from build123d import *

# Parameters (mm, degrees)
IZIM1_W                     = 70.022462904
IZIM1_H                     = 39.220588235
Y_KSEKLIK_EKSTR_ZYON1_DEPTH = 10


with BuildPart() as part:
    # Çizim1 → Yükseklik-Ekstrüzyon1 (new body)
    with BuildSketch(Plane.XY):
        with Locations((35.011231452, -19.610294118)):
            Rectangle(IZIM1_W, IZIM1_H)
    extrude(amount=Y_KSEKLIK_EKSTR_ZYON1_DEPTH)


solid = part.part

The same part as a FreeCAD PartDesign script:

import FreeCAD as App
import Part
import Sketcher
Q = App.Units.Quantity

doc = App.newDocument("Part")
params = doc.addObject("Spreadsheet::Sheet", "Params")
for row, (alias, value) in enumerate([
    ("pad1_length", "10 mm"),
], start=1):
    params.set(f"A{row}", alias)
    params.set(f"B{row}", "=" + value)
    params.setAlias(f"B{row}", alias)

body = doc.addObject("PartDesign::Body", "Body")

# Sketch on XY plane
sketch1 = doc.addObject("Sketcher::SketchObject", "Sketch")
body.addObject(sketch1)
sketch1.AttachmentSupport = (doc.XY_Plane, [""])
sketch1.MapMode = "FlatFace"
sketch1.addGeometry(Part.LineSegment(App.Vector(0, 0, 0), App.Vector(0, -39.220588, 0)), False)
sketch1.addGeometry(Part.LineSegment(App.Vector(0, -39.220588, 0), App.Vector(70.022463, -39.220588, 0)), False)
sketch1.addGeometry(Part.LineSegment(App.Vector(70.022463, -39.220588, 0), App.Vector(70.022463, 0, 0)), False)
sketch1.addGeometry(Part.LineSegment(App.Vector(70.022463, 0, 0), App.Vector(0, 0, 0)), False)
sketch1.addConstraint(Sketcher.Constraint("Coincident", 0, 2, 1, 1))
sketch1.addConstraint(Sketcher.Constraint("Coincident", 1, 2, 2, 1))
sketch1.addConstraint(Sketcher.Constraint("Coincident", 2, 2, 3, 1))
sketch1.addConstraint(Sketcher.Constraint("Coincident", 3, 2, 0, 1))
sketch1.addConstraint(Sketcher.Constraint("Vertical", 0))
sketch1.addConstraint(Sketcher.Constraint("Horizontal", 1))
sketch1.addConstraint(Sketcher.Constraint("Vertical", 2))
sketch1.addConstraint(Sketcher.Constraint("Horizontal", 3))
sketch1.addConstraint(Sketcher.Constraint("Coincident", 3, 2, -1, 1))
sketch1.addConstraint(Sketcher.Constraint("DistanceY", 0, 2, 0, 1, Q("39.220588 mm")))
sketch1.addConstraint(Sketcher.Constraint("DistanceX", 1, 1, 1, 2, Q("70.022463 mm")))
pad1 = doc.addObject("PartDesign::Pad", "Pad")
body.addObject(pad1)
pad1.Profile = sketch1
pad1.setExpression("Length", "Params.pad1_length")

doc.recompute()
